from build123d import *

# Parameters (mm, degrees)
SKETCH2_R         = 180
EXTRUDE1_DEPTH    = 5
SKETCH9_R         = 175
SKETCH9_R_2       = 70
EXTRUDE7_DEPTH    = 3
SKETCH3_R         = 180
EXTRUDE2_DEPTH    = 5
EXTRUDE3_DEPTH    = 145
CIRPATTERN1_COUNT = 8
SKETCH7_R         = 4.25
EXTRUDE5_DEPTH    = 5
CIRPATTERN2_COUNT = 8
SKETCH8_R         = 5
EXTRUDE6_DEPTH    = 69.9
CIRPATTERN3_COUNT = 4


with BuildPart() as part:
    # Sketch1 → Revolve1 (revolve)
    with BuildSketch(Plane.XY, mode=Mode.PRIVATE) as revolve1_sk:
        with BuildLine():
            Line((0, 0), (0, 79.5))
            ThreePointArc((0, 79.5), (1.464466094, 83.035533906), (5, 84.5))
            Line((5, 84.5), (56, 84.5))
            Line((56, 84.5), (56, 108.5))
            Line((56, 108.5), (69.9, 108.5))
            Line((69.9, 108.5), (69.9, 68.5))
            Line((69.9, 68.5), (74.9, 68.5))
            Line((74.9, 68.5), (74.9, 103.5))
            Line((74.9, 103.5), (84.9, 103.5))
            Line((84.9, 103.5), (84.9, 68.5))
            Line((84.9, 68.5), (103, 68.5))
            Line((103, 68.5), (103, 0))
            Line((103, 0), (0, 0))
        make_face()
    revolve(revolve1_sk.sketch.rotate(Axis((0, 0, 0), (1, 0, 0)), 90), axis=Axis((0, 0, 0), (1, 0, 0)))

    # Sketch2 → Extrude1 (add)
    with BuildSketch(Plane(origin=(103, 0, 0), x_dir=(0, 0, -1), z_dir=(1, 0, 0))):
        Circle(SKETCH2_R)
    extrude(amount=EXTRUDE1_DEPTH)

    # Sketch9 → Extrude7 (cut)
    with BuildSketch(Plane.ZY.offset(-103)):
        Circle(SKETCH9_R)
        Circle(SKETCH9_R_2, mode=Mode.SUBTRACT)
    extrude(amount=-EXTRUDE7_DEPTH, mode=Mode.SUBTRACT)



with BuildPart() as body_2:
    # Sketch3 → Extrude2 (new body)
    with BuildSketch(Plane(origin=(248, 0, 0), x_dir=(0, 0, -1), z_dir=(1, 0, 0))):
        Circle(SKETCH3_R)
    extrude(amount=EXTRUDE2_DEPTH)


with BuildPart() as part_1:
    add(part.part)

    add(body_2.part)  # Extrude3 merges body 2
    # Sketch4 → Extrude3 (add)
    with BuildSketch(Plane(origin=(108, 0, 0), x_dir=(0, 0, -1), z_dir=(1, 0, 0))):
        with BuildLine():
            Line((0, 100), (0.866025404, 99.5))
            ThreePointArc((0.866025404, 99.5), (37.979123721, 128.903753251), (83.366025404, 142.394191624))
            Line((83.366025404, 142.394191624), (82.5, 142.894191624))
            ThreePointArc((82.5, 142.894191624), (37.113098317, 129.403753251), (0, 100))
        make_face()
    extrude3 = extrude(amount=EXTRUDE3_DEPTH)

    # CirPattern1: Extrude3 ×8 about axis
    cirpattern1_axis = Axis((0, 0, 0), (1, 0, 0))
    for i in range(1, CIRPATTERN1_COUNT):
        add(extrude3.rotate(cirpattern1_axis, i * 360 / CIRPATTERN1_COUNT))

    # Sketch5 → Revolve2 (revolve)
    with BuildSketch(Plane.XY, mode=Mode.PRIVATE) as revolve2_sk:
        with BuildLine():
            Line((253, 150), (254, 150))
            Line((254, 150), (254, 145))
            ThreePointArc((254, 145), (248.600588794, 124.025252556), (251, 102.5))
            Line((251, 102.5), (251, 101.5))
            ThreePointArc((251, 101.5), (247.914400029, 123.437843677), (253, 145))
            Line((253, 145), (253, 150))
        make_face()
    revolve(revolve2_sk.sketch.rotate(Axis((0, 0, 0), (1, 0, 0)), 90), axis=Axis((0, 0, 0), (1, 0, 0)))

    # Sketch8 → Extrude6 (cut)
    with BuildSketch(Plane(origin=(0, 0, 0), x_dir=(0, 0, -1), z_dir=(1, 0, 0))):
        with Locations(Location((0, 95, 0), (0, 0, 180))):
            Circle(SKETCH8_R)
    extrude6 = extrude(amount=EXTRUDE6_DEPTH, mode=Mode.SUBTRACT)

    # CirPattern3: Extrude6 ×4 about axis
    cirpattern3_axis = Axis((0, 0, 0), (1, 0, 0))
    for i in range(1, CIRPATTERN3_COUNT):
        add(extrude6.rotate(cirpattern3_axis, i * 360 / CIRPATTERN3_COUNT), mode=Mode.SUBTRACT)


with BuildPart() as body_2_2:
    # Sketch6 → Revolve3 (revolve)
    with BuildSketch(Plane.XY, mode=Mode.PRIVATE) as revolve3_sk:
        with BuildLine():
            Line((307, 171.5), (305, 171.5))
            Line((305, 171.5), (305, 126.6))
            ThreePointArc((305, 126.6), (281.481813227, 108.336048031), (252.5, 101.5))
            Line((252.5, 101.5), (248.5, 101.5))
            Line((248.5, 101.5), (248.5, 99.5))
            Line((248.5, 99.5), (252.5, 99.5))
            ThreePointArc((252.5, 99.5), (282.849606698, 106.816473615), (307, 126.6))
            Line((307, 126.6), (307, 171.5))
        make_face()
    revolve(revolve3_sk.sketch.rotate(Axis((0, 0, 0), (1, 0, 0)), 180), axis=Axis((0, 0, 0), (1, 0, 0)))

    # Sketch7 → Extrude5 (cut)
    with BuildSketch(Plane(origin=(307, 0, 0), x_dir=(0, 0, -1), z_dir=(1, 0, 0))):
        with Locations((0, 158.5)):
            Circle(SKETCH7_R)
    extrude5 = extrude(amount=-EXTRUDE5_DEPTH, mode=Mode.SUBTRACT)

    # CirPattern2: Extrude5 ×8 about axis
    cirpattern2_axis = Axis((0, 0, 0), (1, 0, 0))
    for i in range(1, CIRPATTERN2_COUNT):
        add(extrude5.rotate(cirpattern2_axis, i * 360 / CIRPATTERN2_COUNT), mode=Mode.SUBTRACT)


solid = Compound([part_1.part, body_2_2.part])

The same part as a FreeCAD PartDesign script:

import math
import FreeCAD as App
import Part
import Sketcher

V = App.Vector
Q = App.Units.Quantity

doc = App.newDocument("Part")
body = doc.addObject("PartDesign::Body", "Body")

# Sketch on XY plane
sketch1 = doc.addObject("Sketcher::SketchObject", "Sketch")
body.addObject(sketch1)
sketch1.AttachmentSupport = (doc.XY_Plane, [""])
sketch1.MapMode = "FlatFace"
sketch1.addGeometry([
    Part.LineSegment(V(0, 79.5, 0), V(0, 0, 0)),  # 0
    Part.LineSegment(V(0, 0, 0), V(103, 0, 0)),  # 1
    Part.LineSegment(V(103, 0, 0), V(103, 68.5, 0)),  # 2
    Part.LineSegment(V(103, 68.5, 0), V(84.9, 68.5, 0)),  # 3
    Part.LineSegment(V(84.9, 68.5, 0), V(84.9, 103.5, 0)),  # 4
    Part.LineSegment(V(84.9, 103.5, 0), V(74.9, 103.5, 0)),  # 5
    Part.LineSegment(V(74.9, 103.5, 0), V(74.9, 68.5, 0)),  # 6
    Part.LineSegment(V(74.9, 68.5, 0), V(69.9, 68.5, 0)),  # 7
    Part.LineSegment(V(69.9, 68.5, 0), V(69.9, 108.5, 0)),  # 8
    Part.LineSegment(V(69.9, 108.5, 0), V(56, 108.5, 0)),  # 9
    Part.LineSegment(V(56, 108.5, 0), V(56, 84.5, 0)),  # 10
    Part.LineSegment(V(56, 84.5, 0), V(5, 84.5, 0)),  # 11
    Part.ArcOfCircle(Part.Circle(V(5, 79.5, 0), V(0, 0, 1), 5), math.radians(90), math.radians(180)),  # 12
], False)
sketch1.addConstraint([
    Sketcher.Constraint("Coincident", 0, 2, 1, 1),
    Sketcher.Constraint("Coincident", 1, 2, 2, 1),
    Sketcher.Constraint("Coincident", 2, 2, 3, 1),
    Sketcher.Constraint("Coincident", 3, 2, 4, 1),
    Sketcher.Constraint("Coincident", 4, 2, 5, 1),
    Sketcher.Constraint("Coincident", 5, 2, 6, 1),
    Sketcher.Constraint("Coincident", 6, 2, 7, 1),
    Sketcher.Constraint("Coincident", 7, 2, 8, 1),
    Sketcher.Constraint("Coincident", 8, 2, 9, 1),
    Sketcher.Constraint("Coincident", 9, 2, 10, 1),
    Sketcher.Constraint("Coincident", 10, 2, 11, 1),
    Sketcher.Constraint("Tangent", 11, 2, 12, 1),
    Sketcher.Constraint("Tangent", 12, 2, 0, 1),
    Sketcher.Constraint("Vertical", 0),
    Sketcher.Constraint("Horizontal", 1),
    Sketcher.Constraint("Vertical", 2),
    Sketcher.Constraint("Horizontal", 3),
    Sketcher.Constraint("Vertical", 4),
    Sketcher.Constraint("Horizontal", 5),
    Sketcher.Constraint("Vertical", 6),
    Sketcher.Constraint("Horizontal", 7),
    Sketcher.Constraint("Vertical", 8),
    Sketcher.Constraint("Horizontal", 9),
    Sketcher.Constraint("Vertical", 10),
    Sketcher.Constraint("Horizontal", 11),
    Sketcher.Constraint("Coincident", 0, 2, -1, 1),
    Sketcher.Constraint("Horizontal", 3, 2, 6, 2),
    Sketcher.Constraint("Radius", 12, 5.0),
    Sketcher.Constraint("DistanceX", 1, 1, 1, 2, 103.0),
    Sketcher.Constraint("DistanceX", 5, 2, 5, 1, 10.0),
    Sketcher.Constraint("DistanceX", 7, 2, 7, 1, 5.0),
    Sketcher.Constraint("DistanceX", 11, 2, 11, 1, 51.0),
    Sketcher.Constraint("DistanceY", 4, 1, 4, 2, 35.0),
    Sketcher.Constraint("DistanceY", 8, 1, 8, 2, 40.0),
    Sketcher.Constraint("DistanceY", 10, 2, 10, 1, 24.0),
    Sketcher.Constraint("DistanceX", 3, 2, 3, 1, 18.1),
    Sketcher.Constraint("DistanceY", 0, 2, 0, 1, 79.5),
])
revolution = doc.addObject("PartDesign::Revolution", "Revolution")
body.addObject(revolution)
revolution.Profile = sketch1
revolution.ReferenceAxis = (sketch1, ["H_Axis"])
revolution.Angle = 360

# Sketch on YZ plane
sketch2 = doc.addObject("Sketcher::SketchObject", "Sketch001")
body.addObject(sketch2)
sketch2.AttachmentSupport = (doc.YZ_Plane, [""])
sketch2.MapMode = "FlatFace"
sketch2.AttachmentOffset = App.Placement(V(0, 0, 103), App.Rotation())
sketch2.addGeometry(Part.Circle(V(0, 0, 0), V(0, 0, 1), 180), False)
sketch2.addConstraint([
    Sketcher.Constraint("Coincident", 0, 3, -1, 1),
    Sketcher.Constraint("Diameter", 0, 360.0),
])
pad1 = doc.addObject("PartDesign::Pad", "Pad")
body.addObject(pad1)
pad1.Profile = sketch2
pad1.Length = 5

# Sketch on YZ plane
sketch3 = doc.addObject("Sketcher::SketchObject", "Sketch002")
body.addObject(sketch3)
sketch3.AttachmentSupport = (doc.YZ_Plane, [""])
sketch3.MapMode = "FlatFace"
sketch3.AttachmentOffset = App.Placement(V(0, 0, 103), App.Rotation())
sketch3.addGeometry([
    Part.Circle(V(0, 0, 0), V(0, 0, 1), 175),
    Part.Circle(V(0, 0, 0), V(0, 0, 1), 70),
], False)
sketch3.addConstraint([
    Sketcher.Constraint("Coincident", 0, 3, -1, 1),
    Sketcher.Constraint("Coincident", 1, 3, -1, 1),
    Sketcher.Constraint("Diameter", 0, 350.0),
    Sketcher.Constraint("Diameter", 1, 140.0),
])
pocket1 = doc.addObject("PartDesign::Pocket", "Pocket")
body.addObject(pocket1)
pocket1.Profile = sketch3
pocket1.Length = 3
pocket1.Reversed = True
body2 = doc.addObject("PartDesign::Body", "Body001")

# Sketch on YZ plane
sketch4 = doc.addObject("Sketcher::SketchObject", "Sketch003")
body2.addObject(sketch4)
sketch4.AttachmentSupport = (doc.getObject("YZ_Plane001"), [""])
sketch4.MapMode = "FlatFace"
sketch4.AttachmentOffset = App.Placement(V(0, 0, 248), App.Rotation())
sketch4.addGeometry(Part.Circle(V(0, 0, 0), V(0, 0, 1), 180), False)
sketch4.addConstraint([
    Sketcher.Constraint("Coincident", 0, 3, -1, 1),
    Sketcher.Constraint("Diameter", 0, 360.0),
])
pad2 = doc.addObject("PartDesign::Pad", "Pad001")
body2.addObject(pad2)
pad2.Profile = sketch4
pad2.Length = 5
body.AllowCompound = True
doc.recompute()

boolean = doc.addObject("PartDesign::Boolean", "Boolean")
body.addObject(boolean)
boolean.Type = "Fuse"
boolean.addObjects([body2])

# Sketch on YZ plane
sketch5 = doc.addObject("Sketcher::SketchObject", "Sketch004")
body.addObject(sketch5)
sketch5.AttachmentSupport = (doc.YZ_Plane, [""])
sketch5.MapMode = "FlatFace"
sketch5.AttachmentOffset = App.Placement(V(0, 0, 108), App.Rotation())
sketch5.addGeometry([
    Part.LineSegment(V(100, 0, 0), V(99.5, -0.866025, 0)),
    Part.ArcOfCircle(Part.Circle(V(17.998457, -95.642069, 0), V(0, 0, 1), 125), math.radians(5.636009), math.radians(49.306504)),
    Part.LineSegment(V(142.394192, -83.366025, 0), V(142.894192, -82.5, 0)),
    Part.ArcOfCircle(Part.Circle(V(18.498457, -94.776044, 0), V(0, 0, 1), 125), math.radians(5.636009), math.radians(49.306504)),
], False)
sketch5.addConstraint([
    Sketcher.Constraint("Coincident", 0, 2, 1, 2),
    Sketcher.Constraint("Coincident", 1, 1, 2, 1),
    Sketcher.Constraint("Coincident", 2, 2, 3, 1),
    Sketcher.Constraint("Coincident", 3, 2, 0, 1),
    Sketcher.Constraint("Equal", 1, 3),
    Sketcher.Constraint("PointOnObject", 3, 2, -1),
    Sketcher.Constraint("Parallel", 0, 2),
    Sketcher.Constraint("Equal", 0, 2),
    Sketcher.Constraint("Radius", 1, 125.0),
    Sketcher.Constraint("Angle", 0, Q("-120 deg")),
    Sketcher.Constraint("Distance", 0, 1.0),
    Sketcher.Constraint("DistanceX", -1, 1, 3, 2, 100.0),
    Sketcher.Constraint("DistanceY", 2, 2, -1, 1, 82.5),
    Sketcher.Constraint("DistanceY", 1, 3, -1, 1, 95.642069),
])
pad3 = doc.addObject("PartDesign::Pad", "Pad002")
body.addObject(pad3)
pad3.Profile = sketch5
pad3.Length = 145
doc.recompute()

polarpattern = doc.addObject("PartDesign::PolarPattern", "PolarPattern")
body.addObject(polarpattern)
polarpattern.Originals = [pad3]
polarpattern.Axis = (doc.X_Axis, [""])
polarpattern.Angle = 360
polarpattern.Occurrences = 8
body.Tip = polarpattern

# Sketch on XY plane
sketch6 = doc.addObject("Sketcher::SketchObject", "Sketch005")
body.addObject(sketch6)
sketch6.AttachmentSupport = (doc.XY_Plane, [""])
sketch6.MapMode = "FlatFace"
sketch6.addGeometry([
    Part.LineSegment(V(254, 150, 0), V(253, 150, 0)),  # 0
    Part.LineSegment(V(253, 150, 0), V(253, 145, 0)),  # 1
    Part.ArcOfCircle(Part.Circle(V(307.851084, 120.682134, 0), V(0, 0, 1), 60), math.radians(156.090212), math.radians(198.644918)),  # 2
    Part.LineSegment(V(251, 101.5, 0), V(251, 102.5, 0)),  # 3
    Part.ArcOfCircle(Part.Circle(V(308.451664, 119.800471, 0), V(0, 0, 1), 60), math.radians(155.165908), math.radians(196.758671)),  # 4
    Part.LineSegment(V(254, 145, 0), V(254, 150, 0)),  # 5
], False)
sketch6.addConstraint([
    Sketcher.Constraint("Coincident", 0, 2, 1, 1),
    Sketcher.Constraint("Coincident", 1, 2, 2, 1),
    Sketcher.Constraint("Coincident", 2, 2, 3, 1),
    Sketcher.Constraint("Coincident", 3, 2, 4, 2),
    Sketcher.Constraint("Coincident", 4, 1, 5, 1),
    Sketcher.Constraint("Coincident", 5, 2, 0, 1),
    Sketcher.Constraint("Horizontal", 0),
    Sketcher.Constraint("Vertical", 1),
    Sketcher.Constraint("Vertical", 3),
    Sketcher.Constraint("Vertical", 5),
    Sketcher.Constraint("Equal", 2, 4),
    Sketcher.Constraint("Horizontal", 1, 2, 4, 1),
    Sketcher.Constraint("Equal", 0, 3),
    Sketcher.Constraint("Radius", 2, 60.0),
    Sketcher.Constraint("DistanceX", 0, 2, 0, 1, 1.0),
    Sketcher.Constraint("DistanceY", 1, 2, 1, 1, 5.0),
    Sketcher.Constraint("DistanceX", -1, 1, 0, 2, 253.0),
    Sketcher.Constraint("DistanceY", -1, 1, 0, 2, 150.0),
    Sketcher.Constraint("DistanceX", -1, 1, 2, 2, 251.0),
    Sketcher.Constraint("DistanceY", -1, 1, 2, 2, 101.5),
])
revolution2 = doc.addObject("PartDesign::Revolution", "Revolution001")
body.addObject(revolution2)
revolution2.Profile = sketch6
revolution2.ReferenceAxis = (sketch6, ["H_Axis"])
revolution2.Angle = 360

# Sketch on YZ plane
sketch7 = doc.addObject("Sketcher::SketchObject", "Sketch006")
body.addObject(sketch7)
sketch7.AttachmentSupport = (doc.YZ_Plane, [""])
sketch7.MapMode = "FlatFace"
sketch7.addGeometry(Part.Circle(V(95, 0, 0), V(0, 0, 1), 5), False)
sketch7.addConstraint([
    Sketcher.Constraint("PointOnObject", 0, 3, -1),
    Sketcher.Constraint("Diameter", 0, 10.0),
    Sketcher.Constraint("DistanceX", -1, 1, 0, 3, 95.0),
])
pocket2 = doc.addObject("PartDesign::Pocket", "Pocket001")
body.addObject(pocket2)
pocket2.Profile = sketch7
pocket2.Length = 69.9
pocket2.Reversed = True
doc.recompute()

polarpattern2 = doc.addObject("PartDesign::PolarPattern", "PolarPattern001")
body.addObject(polarpattern2)
polarpattern2.Originals = [pocket2]
polarpattern2.Axis = (doc.X_Axis, [""])
polarpattern2.Angle = 360
polarpattern2.Occurrences = 4
body.Tip = polarpattern2
body3 = doc.addObject("PartDesign::Body", "Body002")

# Sketch on XY plane
sketch8 = doc.addObject("Sketcher::SketchObject", "Sketch007")
body3.addObject(sketch8)
sketch8.AttachmentSupport = (doc.getObject("XY_Plane002"), [""])
sketch8.MapMode = "FlatFace"
sketch8.addGeometry([
    Part.LineSegment(V(307, 171.5, 0), V(305, 171.5, 0)),  # 0
    Part.LineSegment(V(305, 171.5, 0), V(305, 126.6, 0)),  # 1
    Part.ArcOfCircle(Part.Circle(V(251.288442, 171.489514, 0), V(0, 0, 1), 70), math.radians(-89.008277), math.radians(-39.887241)),  # 2
    Part.LineSegment(V(252.5, 101.5, 0), V(248.5, 101.5, 0)),  # 3
    Part.LineSegment(V(248.5, 101.5, 0), V(248.5, 99.5, 0)),  # 4
    Part.LineSegment(V(248.5, 99.5, 0), V(252.5, 99.5, 0)),  # 5
    Part.ArcOfCircle(Part.Circle(V(251.682739, 169.495229, 0), V(0, 0, 1), 70), math.radians(-89.331048), math.radians(-37.791439)),  # 6
    Part.LineSegment(V(307, 126.6, 0), V(307, 171.5, 0)),  # 7
], False)
sketch8.addConstraint([
    Sketcher.Constraint("Coincident", 0, 2, 1, 1),
    Sketcher.Constraint("Coincident", 1, 2, 2, 2),
    Sketcher.Constraint("Coincident", 2, 1, 3, 1),
    Sketcher.Constraint("Coincident", 3, 2, 4, 1),
    Sketcher.Constraint("Coincident", 4, 2, 5, 1),
    Sketcher.Constraint("Coincident", 5, 2, 6, 1),
    Sketcher.Constraint("Coincident", 6, 2, 7, 1),
    Sketcher.Constraint("Coincident", 7, 2, 0, 1),
    Sketcher.Constraint("Horizontal", 0),
    Sketcher.Constraint("Vertical", 1),
    Sketcher.Constraint("Horizontal", 3),
    Sketcher.Constraint("Vertical", 4),
    Sketcher.Constraint("Horizontal", 5),
    Sketcher.Constraint("Vertical", 7),
    Sketcher.Constraint("Equal", 2, 6),
    Sketcher.Constraint("Horizontal", 1, 2, 6, 2),
    Sketcher.Constraint("Vertical", 2, 1, 5, 2),
    Sketcher.Constraint("Equal", 0, 4),
    Sketcher.Constraint("Radius", 2, 70.0),
    Sketcher.Constraint("DistanceX", 0, 2, 0, 1, 2.0),
    Sketcher.Constraint("DistanceX", 3, 2, 3, 1, 4.0),
    Sketcher.Constraint("DistanceY", 1, 2, 1, 1, 44.9),
    Sketcher.Constraint("DistanceX", -1, 1, 0, 2, 305.0),
    Sketcher.Constraint("DistanceY", 2, 1, 0, 2, 70.0),
    Sketcher.Constraint("DistanceY", -1, 1, 0, 2, 171.5),
    Sketcher.Constraint("DistanceX", -1, 1, 2, 1, 252.5),
])
revolution3 = doc.addObject("PartDesign::Revolution", "Revolution002")
body3.addObject(revolution3)
revolution3.Profile = sketch8
revolution3.ReferenceAxis = (sketch8, ["H_Axis"])
revolution3.Angle = 360

# Sketch on YZ plane
sketch9 = doc.addObject("Sketcher::SketchObject", "Sketch008")
body3.addObject(sketch9)
sketch9.AttachmentSupport = (doc.getObject("YZ_Plane002"), [""])
sketch9.MapMode = "FlatFace"
sketch9.AttachmentOffset = App.Placement(V(0, 0, 307), App.Rotation())
sketch9.addGeometry(Part.Circle(V(158.5, 0, 0), V(0, 0, 1), 4.25), False)
sketch9.addConstraint([
    Sketcher.Constraint("PointOnObject", 0, 3, -1),
    Sketcher.Constraint("Diameter", 0, 8.5),
    Sketcher.Constraint("DistanceX", -1, 1, 0, 3, 158.5),
])
pocket3 = doc.addObject("PartDesign::Pocket", "Pocket002")
body3.addObject(pocket3)
pocket3.Profile = sketch9
pocket3.Length = 5
doc.recompute()

polarpattern3 = doc.addObject("PartDesign::PolarPattern", "PolarPattern002")
body3.addObject(polarpattern3)
polarpattern3.Originals = [pocket3]
polarpattern3.Axis = (doc.getObject("X_Axis002"), [""])
polarpattern3.Angle = 360
polarpattern3.Occurrences = 8
body3.Tip = polarpattern3

doc.recompute()
